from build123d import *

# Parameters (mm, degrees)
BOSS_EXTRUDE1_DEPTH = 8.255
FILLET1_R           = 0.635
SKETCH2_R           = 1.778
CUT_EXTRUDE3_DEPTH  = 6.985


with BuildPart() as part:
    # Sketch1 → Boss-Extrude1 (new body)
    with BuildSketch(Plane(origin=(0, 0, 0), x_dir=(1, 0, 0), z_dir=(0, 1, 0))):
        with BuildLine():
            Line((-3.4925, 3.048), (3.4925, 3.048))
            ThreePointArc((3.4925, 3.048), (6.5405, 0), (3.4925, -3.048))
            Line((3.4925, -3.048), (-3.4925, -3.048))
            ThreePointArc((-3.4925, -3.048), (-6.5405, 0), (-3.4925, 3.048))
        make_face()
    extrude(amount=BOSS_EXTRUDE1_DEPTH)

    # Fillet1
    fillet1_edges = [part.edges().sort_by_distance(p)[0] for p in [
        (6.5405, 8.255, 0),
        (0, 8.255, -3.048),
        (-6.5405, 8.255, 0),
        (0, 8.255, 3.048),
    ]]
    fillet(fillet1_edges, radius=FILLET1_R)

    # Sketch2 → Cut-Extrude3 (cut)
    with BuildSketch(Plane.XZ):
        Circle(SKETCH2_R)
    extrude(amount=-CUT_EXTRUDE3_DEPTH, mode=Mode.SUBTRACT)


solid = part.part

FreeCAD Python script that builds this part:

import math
import FreeCAD as App
import Part
import Sketcher
from FreeCAD import Vector
Q = App.Units.Quantity


def edges_at(feature, points):
    """Names of the edges that pass closest to the given points."""
    edges = feature.Shape.Edges
    near = lambda p: min(range(len(edges)), key=lambda i: edges[i].distToShape(Part.Vertex(*p))[0])
    return sorted({f"Edge{near(p) + 1}" for p in points})

doc = App.newDocument("Part")
body = doc.addObject("PartDesign::Body", "Body")

sketch1 = body.newObject("Sketcher::SketchObject", "Sketch")
sketch1.AttachmentSupport = (doc.getObject("XZ_Plane"), [""])
sketch1.MapMode = "FlatFace"
sketch1.addGeometry(Part.LineSegment(Vector(3.5, -3, 0), Vector(-3.5, -3, 0)), False)
sketch1.addGeometry(Part.ArcOfCircle(Part.Circle(Vector(-3.5, 0, 0), Vector(0, 0, 1), 3), math.radians(90), math.radians(270)), False)
sketch1.addGeometry(Part.LineSegment(Vector(-3.5, 3, 0), Vector(3.5, 3, 0)), False)
sketch1.addGeometry(Part.ArcOfCircle(Part.Circle(Vector(3.5, 0, 0), Vector(0, 0, 1), 3), math.radians(-90), math.radians(90)), False)
sketch1.addConstraint(Sketcher.Constraint("Tangent", 0, 2, 1, 2))
sketch1.addConstraint(Sketcher.Constraint("Tangent", 1, 1, 2, 1))
sketch1.addConstraint(Sketcher.Constraint("Tangent", 2, 2, 3, 2))
sketch1.addConstraint(Sketcher.Constraint("Tangent", 3, 1, 0, 1))
sketch1.addConstraint(Sketcher.Constraint("Horizontal", 0))
sketch1.addConstraint(Sketcher.Constraint("Horizontal", 2))
sketch1.addConstraint(Sketcher.Constraint("Symmetric", 1, 3, 3, 3, -1, 1))
sketch1.addConstraint(Sketcher.Constraint("Radius", 1, Q("0.12 in")))
sketch1.addConstraint(Sketcher.Constraint("DistanceX", 0, 2, 0, 1, Q("0.275 in")))
pad1 = body.newObject("PartDesign::Pad", "Pad")
pad1.Profile = sketch1
pad1.Length = Q("0.325 in")
pad1.Reversed = True
doc.recompute()

fillet = body.newObject("PartDesign::Fillet", "Fillet")
fillet.Base = (pad1, edges_at(pad1, [
    (6.54, 8.255, 0),
    (0, 8.255, -3.048),
    (-6.54, 8.255, 0),
    (0, 8.255, 3.048),
]))
fillet.Radius = Q("0.025 in")

sketch2 = body.newObject("Sketcher::SketchObject", "Sketch001")
sketch2.AttachmentSupport = (doc.getObject("XZ_Plane"), [""])
sketch2.MapMode = "FlatFace"
sketch2.addGeometry(Part.Circle(Vector(0, 0, 0), Vector(0, 0, 1), 1.8), False)
sketch2.addConstraint(Sketcher.Constraint("Coincident", 0, 3, -1, 1))
sketch2.addConstraint(Sketcher.Constraint("Diameter", 0, Q("0.14 in")))
pocket1 = body.newObject("PartDesign::Pocket", "Pocket")
pocket1.Profile = sketch2
pocket1.Length = Q("0.275 in")

doc.recompute()
